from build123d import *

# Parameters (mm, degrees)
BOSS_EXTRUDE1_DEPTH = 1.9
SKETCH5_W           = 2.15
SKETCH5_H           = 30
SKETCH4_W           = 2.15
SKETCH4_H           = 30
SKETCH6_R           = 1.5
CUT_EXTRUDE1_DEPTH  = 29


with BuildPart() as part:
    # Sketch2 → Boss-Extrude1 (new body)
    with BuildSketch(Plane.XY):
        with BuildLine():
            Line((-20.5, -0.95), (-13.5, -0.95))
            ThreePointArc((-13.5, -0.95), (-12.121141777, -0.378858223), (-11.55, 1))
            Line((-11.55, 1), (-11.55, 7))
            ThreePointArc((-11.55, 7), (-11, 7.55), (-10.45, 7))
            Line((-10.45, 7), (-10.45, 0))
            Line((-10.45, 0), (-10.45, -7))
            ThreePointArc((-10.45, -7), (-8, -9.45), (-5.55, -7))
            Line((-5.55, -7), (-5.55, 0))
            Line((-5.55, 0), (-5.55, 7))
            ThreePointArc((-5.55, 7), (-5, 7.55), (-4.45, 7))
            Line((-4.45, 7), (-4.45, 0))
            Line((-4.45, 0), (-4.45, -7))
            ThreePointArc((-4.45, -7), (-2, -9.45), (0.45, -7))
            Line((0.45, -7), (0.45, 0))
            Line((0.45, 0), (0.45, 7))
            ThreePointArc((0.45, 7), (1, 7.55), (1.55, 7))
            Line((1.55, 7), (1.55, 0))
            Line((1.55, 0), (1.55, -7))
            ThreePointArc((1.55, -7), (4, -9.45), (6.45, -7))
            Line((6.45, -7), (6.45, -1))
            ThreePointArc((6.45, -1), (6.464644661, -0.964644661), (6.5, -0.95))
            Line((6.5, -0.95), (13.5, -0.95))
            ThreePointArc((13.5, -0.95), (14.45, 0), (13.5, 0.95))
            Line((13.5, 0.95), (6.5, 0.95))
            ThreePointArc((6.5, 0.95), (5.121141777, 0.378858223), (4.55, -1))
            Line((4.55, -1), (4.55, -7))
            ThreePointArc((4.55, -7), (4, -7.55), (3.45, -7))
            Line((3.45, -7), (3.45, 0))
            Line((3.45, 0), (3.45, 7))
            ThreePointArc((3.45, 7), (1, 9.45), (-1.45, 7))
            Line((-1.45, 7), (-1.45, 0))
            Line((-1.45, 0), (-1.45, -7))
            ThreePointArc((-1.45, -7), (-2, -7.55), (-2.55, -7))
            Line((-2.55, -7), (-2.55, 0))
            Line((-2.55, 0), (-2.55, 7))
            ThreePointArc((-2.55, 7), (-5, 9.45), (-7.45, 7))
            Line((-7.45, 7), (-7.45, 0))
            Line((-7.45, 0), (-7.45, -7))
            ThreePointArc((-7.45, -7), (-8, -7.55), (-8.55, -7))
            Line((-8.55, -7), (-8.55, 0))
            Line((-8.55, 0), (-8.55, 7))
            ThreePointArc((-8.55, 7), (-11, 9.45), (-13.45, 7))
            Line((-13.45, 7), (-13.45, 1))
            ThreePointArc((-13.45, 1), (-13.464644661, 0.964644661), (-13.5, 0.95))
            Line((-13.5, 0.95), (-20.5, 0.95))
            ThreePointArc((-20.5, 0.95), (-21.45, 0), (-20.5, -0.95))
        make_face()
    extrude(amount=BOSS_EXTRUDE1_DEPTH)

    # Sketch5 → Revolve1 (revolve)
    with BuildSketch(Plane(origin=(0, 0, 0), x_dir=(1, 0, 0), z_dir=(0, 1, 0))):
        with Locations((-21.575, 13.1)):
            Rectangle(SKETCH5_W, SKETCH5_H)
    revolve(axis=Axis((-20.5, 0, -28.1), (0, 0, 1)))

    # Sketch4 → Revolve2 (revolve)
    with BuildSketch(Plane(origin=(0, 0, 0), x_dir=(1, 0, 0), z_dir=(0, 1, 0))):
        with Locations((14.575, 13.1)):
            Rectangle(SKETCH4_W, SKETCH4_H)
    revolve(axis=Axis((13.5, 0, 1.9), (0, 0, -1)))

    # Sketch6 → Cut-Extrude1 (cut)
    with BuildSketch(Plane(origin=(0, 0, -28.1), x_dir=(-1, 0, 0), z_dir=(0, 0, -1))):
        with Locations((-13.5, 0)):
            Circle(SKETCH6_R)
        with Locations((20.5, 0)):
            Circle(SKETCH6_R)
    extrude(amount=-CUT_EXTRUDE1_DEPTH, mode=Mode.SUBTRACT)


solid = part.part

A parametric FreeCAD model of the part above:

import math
import FreeCAD as App
import Part
import Sketcher

doc = App.newDocument("Part")
params = doc.addObject("Spreadsheet::Sheet", "Params")
for row, (alias, value) in enumerate([
    ("sketch1_width", "7 mm"),
    ("sketch1_height", "6 mm"),
    ("sketch1_height2", "14 mm"),
    ("sketch1_radius", "1.95 mm"),
    ("sketch1_radius2", "0.55 mm"),
    ("pad1_length", "1.9 mm"),
    ("sketch2_height", "30 mm"),
    ("sketch2_width", "2.15 mm"),
    ("revolution_angle", "360 deg"),
    ("sketch3_height", "30 mm"),
    ("sketch3_width", "2.15 mm"),
    ("revolution2_angle", "360 deg"),
    ("sketch4_diameter", "3 mm"),
    ("pocket1_length", "29 mm"),
], start=1):
    params.set(f"A{row}", alias)
    params.set(f"B{row}", "=" + value)
    params.setAlias(f"B{row}", alias)

body = doc.addObject("PartDesign::Body", "Body")

# Sketch on XY plane
sketch1 = body.newObject("Sketcher::SketchObject", "Sketch")
sketch1.AttachmentSupport = (doc.getObject("XY_Plane"), [""])
sketch1.MapMode = "FlatFace"
sketch1.addGeometry([
    Part.LineSegment(App.Vector(-20.5, -0.95, 0), App.Vector(-13.5, -0.95, 0)),  # 0
    Part.ArcOfCircle(Part.Circle(App.Vector(-13.5, 1, 0), App.Vector(0, 0, 1), 1.95), math.radians(-90), math.radians(0)),  # 1
    Part.LineSegment(App.Vector(-11.55, 1, 0), App.Vector(-11.55, 7, 0)),  # 2
    Part.ArcOfCircle(Part.Circle(App.Vector(-11, 7, 0), App.Vector(0, 0, 1), 0.55), math.radians(0), math.radians(180)),  # 3
    Part.LineSegment(App.Vector(-10.45, 7, 0), App.Vector(-10.45, -7, 0)),  # 4
    Part.ArcOfCircle(Part.Circle(App.Vector(-8, -7, 0), App.Vector(0, 0, 1), 2.45), math.radians(180), math.radians(360)),  # 5
    Part.LineSegment(App.Vector(-5.55, -7, 0), App.Vector(-5.55, 7, 0)),  # 6
    Part.ArcOfCircle(Part.Circle(App.Vector(-5, 7, 0), App.Vector(0, 0, 1), 0.55), math.radians(0), math.radians(180)),  # 7
    Part.LineSegment(App.Vector(-4.45, 7, 0), App.Vector(-4.45, -7, 0)),  # 8
    Part.ArcOfCircle(Part.Circle(App.Vector(-2, -7, 0), App.Vector(0, 0, 1), 2.45), math.radians(180), math.radians(360)),  # 9
    Part.LineSegment(App.Vector(0.45, -7, 0), App.Vector(0.45, 7, 0)),  # 10
    Part.ArcOfCircle(Part.Circle(App.Vector(1, 7, 0), App.Vector(0, 0, 1), 0.55), math.radians(0), math.radians(180)),  # 11
    Part.LineSegment(App.Vector(1.55, 7, 0), App.Vector(1.55, -7, 0)),  # 12
    Part.ArcOfCircle(Part.Circle(App.Vector(4, -7, 0), App.Vector(0, 0, 1), 2.45), math.radians(180), math.radians(360)),  # 13
    Part.LineSegment(App.Vector(6.45, -7, 0), App.Vector(6.45, -1, 0)),  # 14
    Part.ArcOfCircle(Part.Circle(App.Vector(6.5, -1, 0), App.Vector(0, 0, 1), 0.05), math.radians(90), math.radians(180)),  # 15
    Part.LineSegment(App.Vector(6.5, -0.95, 0), App.Vector(13.5, -0.95, 0)),  # 16
    Part.ArcOfCircle(Part.Circle(App.Vector(13.5, 0, 0), App.Vector(0, 0, 1), 0.95), math.radians(-90), math.radians(90)),  # 17
    Part.LineSegment(App.Vector(13.5, 0.95, 0), App.Vector(6.5, 0.95, 0)),  # 18
    Part.ArcOfCircle(Part.Circle(App.Vector(6.5, -1, 0), App.Vector(0, 0, 1), 1.95), math.radians(90), math.radians(180)),  # 19
    Part.LineSegment(App.Vector(4.55, -1, 0), App.Vector(4.55, -7, 0)),  # 20
    Part.ArcOfCircle(Part.Circle(App.Vector(4, -7, 0), App.Vector(0, 0, 1), 0.55), math.radians(180), math.radians(360)),  # 21
    Part.LineSegment(App.Vector(3.45, -7, 0), App.Vector(3.45, 7, 0)),  # 22
    Part.ArcOfCircle(Part.Circle(App.Vector(1, 7, 0), App.Vector(0, 0, 1), 2.45), math.radians(0), math.radians(180)),  # 23
    Part.LineSegment(App.Vector(-1.45, 7, 0), App.Vector(-1.45, -7, 0)),  # 24
    Part.ArcOfCircle(Part.Circle(App.Vector(-2, -7, 0), App.Vector(0, 0, 1), 0.55), math.radians(180), math.radians(360)),  # 25
    Part.LineSegment(App.Vector(-2.55, -7, 0), App.Vector(-2.55, 7, 0)),  # 26
    Part.ArcOfCircle(Part.Circle(App.Vector(-5, 7, 0), App.Vector(0, 0, 1), 2.45), math.radians(0), math.radians(180)),  # 27
    Part.LineSegment(App.Vector(-7.45, 7, 0), App.Vector(-7.45, -7, 0)),  # 28
    Part.ArcOfCircle(Part.Circle(App.Vector(-8, -7, 0), App.Vector(0, 0, 1), 0.55), math.radians(180), math.radians(360)),  # 29
    Part.LineSegment(App.Vector(-8.55, -7, 0), App.Vector(-8.55, 7, 0)),  # 30
    Part.ArcOfCircle(Part.Circle(App.Vector(-11, 7, 0), App.Vector(0, 0, 1), 2.45), math.radians(0), math.radians(180)),  # 31
    Part.LineSegment(App.Vector(-13.45, 7, 0), App.Vector(-13.45, 1, 0)),  # 32
    Part.ArcOfCircle(Part.Circle(App.Vector(-13.5, 1, 0), App.Vector(0, 0, 1), 0.05), math.radians(-90), math.radians(0)),  # 33
    Part.LineSegment(App.Vector(-13.5, 0.95, 0), App.Vector(-20.5, 0.95, 0)),  # 34
    Part.ArcOfCircle(Part.Circle(App.Vector(-20.5, 0, 0), App.Vector(0, 0, 1), 0.95), math.radians(90), math.radians(270)),  # 35
], False)
sketch1.addConstraint([
    Sketcher.Constraint("Tangent", 0, 2, 1, 1),
    Sketcher.Constraint("Tangent", 1, 2, 2, 1),
    Sketcher.Constraint("Tangent", 2, 2, 3, 2),
    Sketcher.Constraint("Tangent", 3, 1, 4, 1),
    Sketcher.Constraint("Tangent", 4, 2, 5, 1),
    Sketcher.Constraint("Tangent", 5, 2, 6, 1),
    Sketcher.Constraint("Tangent", 6, 2, 7, 2),
    Sketcher.Constraint("Tangent", 7, 1, 8, 1),
    Sketcher.Constraint("Tangent", 8, 2, 9, 1),
    Sketcher.Constraint("Tangent", 9, 2, 10, 1),
    Sketcher.Constraint("Tangent", 10, 2, 11, 2),
    Sketcher.Constraint("Tangent", 11, 1, 12, 1),
    Sketcher.Constraint("Tangent", 12, 2, 13, 1),
    Sketcher.Constraint("Tangent", 13, 2, 14, 1),
    Sketcher.Constraint("Tangent", 14, 2, 15, 2),
    Sketcher.Constraint("Tangent", 15, 1, 16, 1),
    Sketcher.Constraint("Tangent", 16, 2, 17, 1),
    Sketcher.Constraint("Tangent", 17, 2, 18, 1),
    Sketcher.Constraint("Tangent", 18, 2, 19, 1),
    Sketcher.Constraint("Tangent", 19, 2, 20, 1),
    Sketcher.Constraint("Tangent", 20, 2, 21, 2),
    Sketcher.Constraint("Tangent", 21, 1, 22, 1),
    Sketcher.Constraint("Tangent", 22, 2, 23, 1),
    Sketcher.Constraint("Tangent", 23, 2, 24, 1),
    Sketcher.Constraint("Tangent", 24, 2, 25, 2),
    Sketcher.Constraint("Tangent", 25, 1, 26, 1),
    Sketcher.Constraint("Tangent", 26, 2, 27, 1),
    Sketcher.Constraint("Tangent", 27, 2, 28, 1),
    Sketcher.Constraint("Tangent", 28, 2, 29, 2),
    Sketcher.Constraint("Tangent", 29, 1, 30, 1),
    Sketcher.Constraint("Tangent", 30, 2, 31, 1),
    Sketcher.Constraint("Tangent", 31, 2, 32, 1),
    Sketcher.Constraint("Tangent", 32, 2, 33, 2),
    Sketcher.Constraint("Tangent", 33, 1, 34, 1),
    Sketcher.Constraint("Tangent", 34, 2, 35, 1),
    Sketcher.Constraint("Tangent", 35, 2, 0, 1),
    Sketcher.Constraint("Horizontal", 0),
    Sketcher.Constraint("Vertical", 2),
    Sketcher.Constraint("Vertical", 4),
    Sketcher.Constraint("Vertical", 6),
    Sketcher.Constraint("Vertical", 8),
    Sketcher.Constraint("Vertical", 10),
    Sketcher.Constraint("Vertical", 12),
    Sketcher.Constraint("Vertical", 14),
    Sketcher.Constraint("Horizontal", 16),
    Sketcher.Constraint("Horizontal", 18),
    Sketcher.Constraint("Vertical", 20),
    Sketcher.Constraint("Vertical", 22),
    Sketcher.Constraint("Vertical", 24),
    Sketcher.Constraint("Vertical", 26),
    Sketcher.Constraint("Vertical", 28),
    Sketcher.Constraint("Vertical", 30),
    Sketcher.Constraint("Vertical", 32),
    Sketcher.Constraint("Horizontal", 34),
    Sketcher.Constraint("Coincident", 19, 3, 15, 3),
    Sketcher.Constraint("Coincident", 21, 3, 13, 3),
    Sketcher.Constraint("Coincident", 23, 3, 11, 3),
    Sketcher.Constraint("Coincident", 25, 3, 9, 3),
    Sketcher.Constraint("Coincident", 27, 3, 7, 3),
    Sketcher.Constraint("Coincident", 29, 3, 5, 3),
    Sketcher.Constraint("Coincident", 31, 3, 3, 3),
    Sketcher.Constraint("Coincident", 33, 3, 1, 3),
    Sketcher.Constraint("Equal", 3, 7),
    Sketcher.Constraint("Equal", 5, 9),
    Sketcher.Constraint("Equal", 7, 11),
    Sketcher.Constraint("Equal", 9, 13),
    Sketcher.Constraint("Equal", 1, 19),
    Sketcher.Constraint("Equal", 11, 21),
    Sketcher.Constraint("Symmetric", 0, 2, 17, 2, -1, 1),
    Sketcher.Constraint("PointOnObject", 17, 3, -1),
    Sketcher.Constraint("Horizontal", 3, 3, 7, 3),
    Sketcher.Constraint("Horizontal", 5, 3, 9, 3),
    Sketcher.Constraint("Horizontal", 7, 3, 11, 3),
    Sketcher.Constraint("Horizontal", 9, 3, 13, 3),
    Sketcher.Constraint("Equal", 0, 16),
    Sketcher.Constraint("Equal", 2, 14),
    Sketcher.Constraint("DistanceX", 0, 1, 0, 2, 7.0),
    Sketcher.Constraint("DistanceY", 2, 1, 2, 2, 6.0),
    Sketcher.Constraint("DistanceY", 4, 2, 4, 1, 14.0),
    Sketcher.Constraint("Radius", 1, 1.95),
    Sketcher.Constraint("Radius", 3, 0.55),
])
sketch1.setExpression("Constraints[76]", "Params.sketch1_width")
sketch1.setExpression("Constraints[77]", "Params.sketch1_height")
sketch1.setExpression("Constraints[78]", "Params.sketch1_height2")
sketch1.setExpression("Constraints[79]", "Params.sketch1_radius")
sketch1.setExpression("Constraints[80]", "Params.sketch1_radius2")
pad1 = body.newObject("PartDesign::Pad", "Pad")
pad1.Profile = sketch1
pad1.setExpression("Length", "Params.pad1_length")

# Sketch on XZ plane
sketch2 = body.newObject("Sketcher::SketchObject", "Sketch001")
sketch2.AttachmentSupport = (doc.getObject("XZ_Plane"), [""])
sketch2.MapMode = "FlatFace"
sketch2.addGeometry([
    Part.LineSegment(App.Vector(-22.6, -28.1, 0), App.Vector(-22.6, 1.9, 0)),
    Part.LineSegment(App.Vector(-22.6, 1.9, 0), App.Vector(-20.5, 1.9, 0)),
    Part.LineSegment(App.Vector(-20.5, 1.9, 0), App.Vector(-20.5, -28.1, 0)),
    Part.LineSegment(App.Vector(-20.5, -28.1, 0), App.Vector(-22.6, -28.1, 0)),
], False)
sketch2.addGeometry(Part.LineSegment(App.Vector(-20.5, -28.1, 0), App.Vector(-20.5, 1.9, 0)), True)  # axis
sketch2.addConstraint([
    Sketcher.Constraint("Coincident", 0, 2, 1, 1),
    Sketcher.Constraint("Coincident", 1, 2, 2, 1),
    Sketcher.Constraint("Coincident", 2, 2, 3, 1),
    Sketcher.Constraint("Coincident", 3, 2, 0, 1),
    Sketcher.Constraint("Vertical", 0),
    Sketcher.Constraint("Horizontal", 1),
    Sketcher.Constraint("Vertical", 2),
    Sketcher.Constraint("Horizontal", 3),
    Sketcher.Constraint("Vertical", 4),
    Sketcher.Constraint("Coincident", 4, 1, 2, 2),
    Sketcher.Constraint("Horizontal", 0, 2, 4, 2),
    Sketcher.Constraint("DistanceY", 0, 1, 0, 2, 30.0),
    Sketcher.Constraint("DistanceX", 1, 1, 1, 2, 2.15),
    Sketcher.Constraint("DistanceY", -1, 1, 0, 2, 1.9),
    Sketcher.Constraint("DistanceX", 1, 2, -1, 1, 20.5),
])
sketch2.setExpression("Constraints[11]", "Params.sketch2_height")
sketch2.setExpression("Constraints[12]", "Params.sketch2_width")
revolution = body.newObject("PartDesign::Revolution", "Revolution")
revolution.Profile = sketch2
revolution.ReferenceAxis = (sketch2, ["Axis0"])
revolution.setExpression("Angle", "Params.revolution_angle")

# Sketch on XZ plane
sketch3 = body.newObject("Sketcher::SketchObject", "Sketch002")
sketch3.AttachmentSupport = (doc.getObject("XZ_Plane"), [""])
sketch3.MapMode = "FlatFace"
sketch3.addGeometry([
    Part.LineSegment(App.Vector(13.5, -28.1, 0), App.Vector(13.5, 1.9, 0)),
    Part.LineSegment(App.Vector(13.5, 1.9, 0), App.Vector(15.7, 1.9, 0)),
    Part.LineSegment(App.Vector(15.7, 1.9, 0), App.Vector(15.7, -28.1, 0)),
    Part.LineSegment(App.Vector(15.7, -28.1, 0), App.Vector(13.5, -28.1, 0)),
], False)
sketch3.addGeometry(Part.LineSegment(App.Vector(13.5, 1.9, 0), App.Vector(13.5, -28.1, 0)), True)  # axis
sketch3.addConstraint([
    Sketcher.Constraint("Coincident", 0, 2, 1, 1),
    Sketcher.Constraint("Coincident", 1, 2, 2, 1),
    Sketcher.Constraint("Coincident", 2, 2, 3, 1),
    Sketcher.Constraint("Coincident", 3, 2, 0, 1),
    Sketcher.Constraint("Vertical", 0),
    Sketcher.Constraint("Horizontal", 1),
    Sketcher.Constraint("Vertical", 2),
    Sketcher.Constraint("Horizontal", 3),
    Sketcher.Constraint("Vertical", 4),
    Sketcher.Constraint("Coincident", 4, 1, 0, 2),
    Sketcher.Constraint("Horizontal", 2, 2, 4, 2),
    Sketcher.Constraint("DistanceY", 0, 1, 0, 2, 30.0),
    Sketcher.Constraint("DistanceX", 1, 1, 1, 2, 2.15),
    Sketcher.Constraint("DistanceX", -1, 1, 0, 2, 13.5),
    Sketcher.Constraint("DistanceY", -1, 1, 0, 2, 1.9),
])
sketch3.setExpression("Constraints[11]", "Params.sketch3_height")
sketch3.setExpression("Constraints[12]", "Params.sketch3_width")
revolution2 = body.newObject("PartDesign::Revolution", "Revolution001")
revolution2.Profile = sketch3
revolution2.ReferenceAxis = (sketch3, ["Axis0"])
revolution2.setExpression("Angle", "Params.revolution2_angle")

# Sketch on XY plane
sketch4 = body.newObject("Sketcher::SketchObject", "Sketch003")
sketch4.AttachmentSupport = (doc.getObject("XY_Plane"), [""])
sketch4.MapMode = "FlatFace"
sketch4.AttachmentOffset = App.Placement(App.Vector(0, 0, -28.1), App.Rotation())
sketch4.addGeometry([
    Part.Circle(App.Vector(13.5, 0, 0), App.Vector(0, 0, 1), 1.5),
    Part.Circle(App.Vector(-20.5, 0, 0), App.Vector(0, 0, 1), 1.5),
], False)
sketch4.addConstraint([
    Sketcher.Constraint("Equal", 0, 1),
    Sketcher.Constraint("PointOnObject", 0, 3, -1),
    Sketcher.Constraint("PointOnObject", 1, 3, -1),
    Sketcher.Constraint("Diameter", 0, 3.0),
    Sketcher.Constraint("DistanceX", 1, 3, 0, 3, 34.0),
    Sketcher.Constraint("DistanceX", -1, 1, 0, 3, 13.5),
])
sketch4.setExpression("Constraints[3]", "Params.sketch4_diameter")
pocket1 = body.newObject("PartDesign::Pocket", "Pocket")
pocket1.Profile = sketch4
pocket1.setExpression("Length", "Params.pocket1_length")
pocket1.Reversed = True

doc.recompute()
